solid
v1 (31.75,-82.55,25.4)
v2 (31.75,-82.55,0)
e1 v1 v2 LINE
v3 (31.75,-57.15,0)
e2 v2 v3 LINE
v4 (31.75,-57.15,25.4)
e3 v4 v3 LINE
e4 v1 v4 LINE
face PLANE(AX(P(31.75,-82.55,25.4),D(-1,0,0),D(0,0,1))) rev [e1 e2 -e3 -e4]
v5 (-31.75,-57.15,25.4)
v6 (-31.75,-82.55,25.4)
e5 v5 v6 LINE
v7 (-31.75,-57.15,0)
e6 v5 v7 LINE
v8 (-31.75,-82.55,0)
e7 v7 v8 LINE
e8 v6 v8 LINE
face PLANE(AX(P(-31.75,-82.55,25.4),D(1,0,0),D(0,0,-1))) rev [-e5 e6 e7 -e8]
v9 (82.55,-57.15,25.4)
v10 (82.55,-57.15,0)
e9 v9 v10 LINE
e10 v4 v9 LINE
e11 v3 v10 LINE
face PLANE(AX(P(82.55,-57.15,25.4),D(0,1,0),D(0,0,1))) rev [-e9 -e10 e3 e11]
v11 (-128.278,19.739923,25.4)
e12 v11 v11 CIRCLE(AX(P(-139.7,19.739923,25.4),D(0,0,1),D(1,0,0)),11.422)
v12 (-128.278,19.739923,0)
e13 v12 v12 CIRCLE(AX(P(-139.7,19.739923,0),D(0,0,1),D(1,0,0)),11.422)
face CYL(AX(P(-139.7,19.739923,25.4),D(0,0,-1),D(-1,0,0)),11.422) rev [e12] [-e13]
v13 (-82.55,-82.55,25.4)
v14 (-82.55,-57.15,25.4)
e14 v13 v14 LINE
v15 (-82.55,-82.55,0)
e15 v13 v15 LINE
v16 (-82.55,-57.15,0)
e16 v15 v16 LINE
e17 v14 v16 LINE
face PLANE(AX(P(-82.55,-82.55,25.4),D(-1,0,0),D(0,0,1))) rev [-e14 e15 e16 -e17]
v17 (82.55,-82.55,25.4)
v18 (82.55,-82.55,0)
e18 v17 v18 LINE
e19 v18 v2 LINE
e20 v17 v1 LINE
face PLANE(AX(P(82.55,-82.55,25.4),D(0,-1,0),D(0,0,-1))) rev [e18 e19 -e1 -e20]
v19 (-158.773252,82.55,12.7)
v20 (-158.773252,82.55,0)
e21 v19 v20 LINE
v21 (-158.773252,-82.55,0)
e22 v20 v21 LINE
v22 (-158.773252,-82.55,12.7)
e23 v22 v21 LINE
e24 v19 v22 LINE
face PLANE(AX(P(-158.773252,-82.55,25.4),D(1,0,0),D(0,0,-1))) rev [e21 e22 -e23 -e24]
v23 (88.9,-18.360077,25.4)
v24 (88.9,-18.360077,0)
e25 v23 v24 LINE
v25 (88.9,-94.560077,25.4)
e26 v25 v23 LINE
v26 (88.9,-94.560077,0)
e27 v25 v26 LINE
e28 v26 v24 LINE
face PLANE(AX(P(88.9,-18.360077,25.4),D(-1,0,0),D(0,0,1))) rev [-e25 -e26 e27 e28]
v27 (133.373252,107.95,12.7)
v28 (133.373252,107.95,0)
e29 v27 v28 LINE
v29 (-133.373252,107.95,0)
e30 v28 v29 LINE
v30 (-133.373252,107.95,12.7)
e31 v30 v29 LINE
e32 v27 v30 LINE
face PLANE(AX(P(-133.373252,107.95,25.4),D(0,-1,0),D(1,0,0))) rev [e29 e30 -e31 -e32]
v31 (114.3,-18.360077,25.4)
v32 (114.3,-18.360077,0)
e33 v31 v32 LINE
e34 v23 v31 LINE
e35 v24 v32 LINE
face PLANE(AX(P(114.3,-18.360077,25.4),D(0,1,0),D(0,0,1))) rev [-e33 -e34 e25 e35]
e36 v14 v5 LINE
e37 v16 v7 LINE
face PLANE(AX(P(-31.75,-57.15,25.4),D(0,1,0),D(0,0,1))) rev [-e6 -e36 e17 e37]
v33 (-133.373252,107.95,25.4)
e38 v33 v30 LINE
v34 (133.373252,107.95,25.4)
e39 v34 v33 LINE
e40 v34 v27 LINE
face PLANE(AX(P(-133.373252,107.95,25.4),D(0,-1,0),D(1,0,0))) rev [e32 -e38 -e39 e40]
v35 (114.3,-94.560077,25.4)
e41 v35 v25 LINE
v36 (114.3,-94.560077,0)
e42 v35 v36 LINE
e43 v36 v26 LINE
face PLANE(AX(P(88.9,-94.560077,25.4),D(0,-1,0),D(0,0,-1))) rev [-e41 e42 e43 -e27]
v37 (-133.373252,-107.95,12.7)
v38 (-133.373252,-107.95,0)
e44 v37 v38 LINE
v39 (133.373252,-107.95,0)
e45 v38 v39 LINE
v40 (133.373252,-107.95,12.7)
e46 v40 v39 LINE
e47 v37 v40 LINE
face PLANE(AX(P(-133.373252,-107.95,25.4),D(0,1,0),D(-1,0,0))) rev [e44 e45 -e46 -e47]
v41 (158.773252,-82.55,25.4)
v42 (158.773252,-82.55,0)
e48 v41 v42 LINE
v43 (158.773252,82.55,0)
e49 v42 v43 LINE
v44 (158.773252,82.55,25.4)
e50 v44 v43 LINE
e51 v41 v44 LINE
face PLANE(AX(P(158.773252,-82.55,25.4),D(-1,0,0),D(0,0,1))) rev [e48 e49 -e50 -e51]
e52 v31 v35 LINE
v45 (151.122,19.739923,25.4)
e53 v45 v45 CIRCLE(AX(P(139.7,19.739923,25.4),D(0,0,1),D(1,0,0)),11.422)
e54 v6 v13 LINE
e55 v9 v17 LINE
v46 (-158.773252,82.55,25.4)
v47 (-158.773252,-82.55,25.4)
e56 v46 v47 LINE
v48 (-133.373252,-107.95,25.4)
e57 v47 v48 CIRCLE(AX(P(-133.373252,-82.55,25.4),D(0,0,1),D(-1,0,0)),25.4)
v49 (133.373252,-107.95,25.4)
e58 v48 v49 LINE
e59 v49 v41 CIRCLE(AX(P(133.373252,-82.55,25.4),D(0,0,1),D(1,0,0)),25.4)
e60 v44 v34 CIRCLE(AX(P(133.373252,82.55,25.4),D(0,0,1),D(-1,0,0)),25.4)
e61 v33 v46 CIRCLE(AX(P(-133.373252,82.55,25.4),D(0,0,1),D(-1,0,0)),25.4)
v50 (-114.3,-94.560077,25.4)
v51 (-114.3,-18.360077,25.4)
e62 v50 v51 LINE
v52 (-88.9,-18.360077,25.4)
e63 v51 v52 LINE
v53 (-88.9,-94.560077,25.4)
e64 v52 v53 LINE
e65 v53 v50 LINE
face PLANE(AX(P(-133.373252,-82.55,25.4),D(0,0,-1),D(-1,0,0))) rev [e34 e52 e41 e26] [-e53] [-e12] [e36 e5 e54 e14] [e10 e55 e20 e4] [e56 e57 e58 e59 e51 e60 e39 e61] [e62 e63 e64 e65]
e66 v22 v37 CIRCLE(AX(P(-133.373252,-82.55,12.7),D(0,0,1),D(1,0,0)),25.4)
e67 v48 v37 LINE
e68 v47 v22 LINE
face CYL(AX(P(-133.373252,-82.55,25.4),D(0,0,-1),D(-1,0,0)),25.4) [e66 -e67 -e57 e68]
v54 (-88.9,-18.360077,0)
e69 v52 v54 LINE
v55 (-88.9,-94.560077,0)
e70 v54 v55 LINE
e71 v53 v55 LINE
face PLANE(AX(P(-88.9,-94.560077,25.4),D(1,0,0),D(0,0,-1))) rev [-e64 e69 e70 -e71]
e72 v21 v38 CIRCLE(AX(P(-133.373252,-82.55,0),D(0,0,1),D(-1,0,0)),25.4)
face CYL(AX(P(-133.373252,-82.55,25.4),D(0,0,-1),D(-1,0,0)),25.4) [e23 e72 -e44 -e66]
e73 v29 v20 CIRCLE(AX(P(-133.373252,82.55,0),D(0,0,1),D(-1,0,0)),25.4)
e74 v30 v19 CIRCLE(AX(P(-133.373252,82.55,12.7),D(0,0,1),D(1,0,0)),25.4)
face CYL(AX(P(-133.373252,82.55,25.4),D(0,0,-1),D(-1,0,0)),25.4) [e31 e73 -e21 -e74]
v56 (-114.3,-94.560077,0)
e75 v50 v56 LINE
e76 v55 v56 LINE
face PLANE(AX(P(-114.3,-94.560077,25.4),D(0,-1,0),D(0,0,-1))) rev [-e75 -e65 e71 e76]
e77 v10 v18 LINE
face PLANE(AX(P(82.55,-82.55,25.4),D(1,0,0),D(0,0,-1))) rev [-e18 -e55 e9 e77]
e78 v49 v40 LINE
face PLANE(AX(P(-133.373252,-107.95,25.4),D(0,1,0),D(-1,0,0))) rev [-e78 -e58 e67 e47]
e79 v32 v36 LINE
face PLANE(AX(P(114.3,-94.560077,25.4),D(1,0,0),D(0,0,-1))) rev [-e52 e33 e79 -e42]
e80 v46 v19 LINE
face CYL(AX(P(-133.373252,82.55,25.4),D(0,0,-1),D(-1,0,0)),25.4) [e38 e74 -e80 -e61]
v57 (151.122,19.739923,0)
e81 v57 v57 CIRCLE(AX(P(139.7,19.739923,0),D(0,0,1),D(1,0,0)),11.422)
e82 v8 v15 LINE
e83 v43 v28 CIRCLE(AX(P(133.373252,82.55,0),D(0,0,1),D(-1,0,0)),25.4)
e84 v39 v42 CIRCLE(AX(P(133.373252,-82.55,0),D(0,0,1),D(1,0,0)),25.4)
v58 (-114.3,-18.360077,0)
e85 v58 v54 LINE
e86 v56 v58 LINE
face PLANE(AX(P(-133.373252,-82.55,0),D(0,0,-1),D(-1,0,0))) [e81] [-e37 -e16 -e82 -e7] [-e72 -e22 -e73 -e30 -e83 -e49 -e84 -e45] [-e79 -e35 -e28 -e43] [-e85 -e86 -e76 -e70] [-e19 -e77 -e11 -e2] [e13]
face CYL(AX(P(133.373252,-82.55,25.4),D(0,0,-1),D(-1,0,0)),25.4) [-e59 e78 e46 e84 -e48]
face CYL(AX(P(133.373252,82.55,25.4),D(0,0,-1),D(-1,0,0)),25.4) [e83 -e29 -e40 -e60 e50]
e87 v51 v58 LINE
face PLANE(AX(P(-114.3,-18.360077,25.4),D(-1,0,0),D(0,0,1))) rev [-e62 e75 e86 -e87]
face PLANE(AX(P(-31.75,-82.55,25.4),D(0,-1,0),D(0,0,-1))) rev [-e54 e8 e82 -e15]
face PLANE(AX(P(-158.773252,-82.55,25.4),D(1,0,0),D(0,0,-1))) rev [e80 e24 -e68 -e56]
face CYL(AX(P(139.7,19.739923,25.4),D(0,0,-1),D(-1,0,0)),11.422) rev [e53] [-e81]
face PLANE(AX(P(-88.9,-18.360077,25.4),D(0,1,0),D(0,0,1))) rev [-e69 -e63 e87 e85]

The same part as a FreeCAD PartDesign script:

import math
import FreeCAD as App
import Part
import Sketcher
Q = App.Units.Quantity


def add_polygon(sketch, points):
    """Adds a closed chain of lines whose ends are joined by coincident constraints."""
    first, n = sketch.GeometryCount, len(points)
    for a, b in zip(points, points[1:] + points[:1]):
        sketch.addGeometry(Part.LineSegment(App.Vector(*a, 0), App.Vector(*b, 0)), False)
    for i in range(n):
        sketch.addConstraint(Sketcher.Constraint("Coincident", first + i, 2, first + (i + 1) % n, 1))

doc = App.newDocument("Part")
body = doc.addObject("PartDesign::Body", "Body")

# Sketch on XY plane
sketch1 = body.newObject("Sketcher::SketchObject", "Sketch")
sketch1.AttachmentSupport = (doc.getObject("XY_Plane"), [""])
sketch1.MapMode = "FlatFace"
sketch1.addGeometry(Part.LineSegment(App.Vector(-133, -108, 0), App.Vector(133, -108, 0)), False)
sketch1.addGeometry(Part.ArcOfCircle(Part.Circle(App.Vector(133, -83, 0), App.Vector(0, 0, 1), 25), math.radians(-90), math.radians(0)), False)
sketch1.addGeometry(Part.LineSegment(App.Vector(159, -83, 0), App.Vector(159, 83, 0)), False)
sketch1.addGeometry(Part.ArcOfCircle(Part.Circle(App.Vector(133, 83, 0), App.Vector(0, 0, 1), 25), math.radians(0), math.radians(90)), False)
sketch1.addGeometry(Part.LineSegment(App.Vector(133, 108, 0), App.Vector(-133, 108, 0)), False)
sketch1.addGeometry(Part.ArcOfCircle(Part.Circle(App.Vector(-133, 83, 0), App.Vector(0, 0, 1), 25), math.radians(90), math.radians(180)), False)
sketch1.addGeometry(Part.LineSegment(App.Vector(-159, 83, 0), App.Vector(-159, -83, 0)), False)
sketch1.addGeometry(Part.ArcOfCircle(Part.Circle(App.Vector(-133, -83, 0), App.Vector(0, 0, 1), 25), math.radians(180), math.radians(270)), False)
sketch1.addGeometry(Part.Circle(App.Vector(-140, 20, 0), App.Vector(0, 0, 1), 11), False)
sketch1.addGeometry(Part.Circle(App.Vector(140, 20, 0), App.Vector(0, 0, 1), 11), False)
sketch1.addConstraint(Sketcher.Constraint("Tangent", 0, 2, 1, 1))
sketch1.addConstraint(Sketcher.Constraint("Tangent", 1, 2, 2, 1))
sketch1.addConstraint(Sketcher.Constraint("Tangent", 2, 2, 3, 1))
sketch1.addConstraint(Sketcher.Constraint("Tangent", 3, 2, 4, 1))
sketch1.addConstraint(Sketcher.Constraint("Tangent", 4, 2, 5, 1))
sketch1.addConstraint(Sketcher.Constraint("Tangent", 5, 2, 6, 1))
sketch1.addConstraint(Sketcher.Constraint("Tangent", 6, 2, 7, 1))
sketch1.addConstraint(Sketcher.Constraint("Tangent", 7, 2, 0, 1))
sketch1.addConstraint(Sketcher.Constraint("Horizontal", 0))
sketch1.addConstraint(Sketcher.Constraint("Vertical", 2))
sketch1.addConstraint(Sketcher.Constraint("Horizontal", 4))
sketch1.addConstraint(Sketcher.Constraint("Vertical", 6))
sketch1.addConstraint(Sketcher.Constraint("Equal", 1, 3))
sketch1.addConstraint(Sketcher.Constraint("Equal", 3, 5))
sketch1.addConstraint(Sketcher.Constraint("Equal", 5, 7))
sketch1.addConstraint(Sketcher.Constraint("Equal", 8, 9))
sketch1.addConstraint(Sketcher.Constraint("Symmetric", 1, 3, 5, 3, -1, 1))
sketch1.addConstraint(Sketcher.Constraint("Symmetric", 8, 3, 9, 3, -2))
sketch1.addConstraint(Sketcher.Constraint("Radius", 1, Q("1 in")))
sketch1.addConstraint(Sketcher.Constraint("DistanceY", 2, 1, 2, 2, Q("6.5 in")))
sketch1.addConstraint(Sketcher.Constraint("DistanceX", 8, 3, 9, 3, Q("11 in")))
sketch1.addConstraint(Sketcher.Constraint("Diameter", 8, Q("22.844 mm")))
sketch1.addConstraint(Sketcher.Constraint("DistanceX", 0, 1, 0, 2, Q("266.746503 mm")))
sketch1.addConstraint(Sketcher.Constraint("DistanceY", -1, 1, 8, 3, Q("19.739923 mm")))
pad1 = body.newObject("PartDesign::Pad", "Pad")
pad1.Profile = sketch1
pad1.Length = Q("1 in")

# Sketch on XY plane
sketch2 = body.newObject("Sketcher::SketchObject", "Sketch001")
sketch2.AttachmentSupport = (doc.getObject("XY_Plane"), [""])
sketch2.MapMode = "FlatFace"
add_polygon(sketch2, [(83, -57), (83, -83), (32, -83), (32, -57)])  # lines 0-3
add_polygon(sketch2, [(-32, -57), (-32, -83), (-83, -83), (-83, -57)])  # lines 4-7
sketch2.addConstraint(Sketcher.Constraint("Vertical", 0))
sketch2.addConstraint(Sketcher.Constraint("Horizontal", 1))
sketch2.addConstraint(Sketcher.Constraint("Vertical", 2))
sketch2.addConstraint(Sketcher.Constraint("Horizontal", 3))
sketch2.addConstraint(Sketcher.Constraint("Vertical", 4))
sketch2.addConstraint(Sketcher.Constraint("Horizontal", 5))
sketch2.addConstraint(Sketcher.Constraint("Vertical", 6))
sketch2.addConstraint(Sketcher.Constraint("Horizontal", 7))
sketch2.addConstraint(Sketcher.Constraint("Symmetric", 1, 2, 4, 2, -2))
sketch2.addConstraint(Sketcher.Constraint("Symmetric", 3, 2, 6, 2, -2))
sketch2.addConstraint(Sketcher.Constraint("DistanceX", 1, 2, 1, 1, Q("2 in")))
sketch2.addConstraint(Sketcher.Constraint("DistanceY", 0, 2, 0, 1, Q("1 in")))
sketch2.addConstraint(Sketcher.Constraint("DistanceX", 4, 2, 1, 2, Q("2.5 in")))
sketch2.addConstraint(Sketcher.Constraint("DistanceY", 0, 2, -1, 1, Q("3.25 in")))
pocket1 = body.newObject("PartDesign::Pocket", "Pocket")
pocket1.Profile = sketch2
pocket1.Length = Q("1 in")
pocket1.Reversed = True

# Sketch on XY plane
sketch3 = body.newObject("Sketcher::SketchObject", "Sketch002")
sketch3.AttachmentSupport = (doc.getObject("XY_Plane"), [""])
sketch3.MapMode = "FlatFace"
add_polygon(sketch3, [(-89, -18), (-89, -95), (-114, -95), (-114, -18)])  # lines 0-3
add_polygon(sketch3, [(114, -18), (114, -95), (89, -95), (89, -18)])  # lines 4-7
sketch3.addConstraint(Sketcher.Constraint("Vertical", 0))
sketch3.addConstraint(Sketcher.Constraint("Horizontal", 1))
sketch3.addConstraint(Sketcher.Constraint("Vertical", 2))
sketch3.addConstraint(Sketcher.Constraint("Horizontal", 3))
sketch3.addConstraint(Sketcher.Constraint("Vertical", 4))
sketch3.addConstraint(Sketcher.Constraint("Horizontal", 5))
sketch3.addConstraint(Sketcher.Constraint("Vertical", 6))
sketch3.addConstraint(Sketcher.Constraint("Horizontal", 7))
sketch3.addConstraint(Sketcher.Constraint("Symmetric", 1, 2, 4, 2, -2))
sketch3.addConstraint(Sketcher.Constraint("Symmetric", 3, 2, 6, 2, -2))
sketch3.addConstraint(Sketcher.Constraint("DistanceX", 1, 2, 1, 1, Q("1 in")))
sketch3.addConstraint(Sketcher.Constraint("DistanceY", 0, 2, 0, 1, Q("3 in")))
sketch3.addConstraint(Sketcher.Constraint("DistanceX", 0, 2, 4, 2, Q("8 in")))
sketch3.addConstraint(Sketcher.Constraint("DistanceY", 0, 2, -1, 1, Q("94.560077 mm")))
pocket2 = body.newObject("PartDesign::Pocket", "Pocket001")
pocket2.Profile = sketch3
pocket2.Length = Q("1 in")
pocket2.Reversed = True

doc.recompute()
